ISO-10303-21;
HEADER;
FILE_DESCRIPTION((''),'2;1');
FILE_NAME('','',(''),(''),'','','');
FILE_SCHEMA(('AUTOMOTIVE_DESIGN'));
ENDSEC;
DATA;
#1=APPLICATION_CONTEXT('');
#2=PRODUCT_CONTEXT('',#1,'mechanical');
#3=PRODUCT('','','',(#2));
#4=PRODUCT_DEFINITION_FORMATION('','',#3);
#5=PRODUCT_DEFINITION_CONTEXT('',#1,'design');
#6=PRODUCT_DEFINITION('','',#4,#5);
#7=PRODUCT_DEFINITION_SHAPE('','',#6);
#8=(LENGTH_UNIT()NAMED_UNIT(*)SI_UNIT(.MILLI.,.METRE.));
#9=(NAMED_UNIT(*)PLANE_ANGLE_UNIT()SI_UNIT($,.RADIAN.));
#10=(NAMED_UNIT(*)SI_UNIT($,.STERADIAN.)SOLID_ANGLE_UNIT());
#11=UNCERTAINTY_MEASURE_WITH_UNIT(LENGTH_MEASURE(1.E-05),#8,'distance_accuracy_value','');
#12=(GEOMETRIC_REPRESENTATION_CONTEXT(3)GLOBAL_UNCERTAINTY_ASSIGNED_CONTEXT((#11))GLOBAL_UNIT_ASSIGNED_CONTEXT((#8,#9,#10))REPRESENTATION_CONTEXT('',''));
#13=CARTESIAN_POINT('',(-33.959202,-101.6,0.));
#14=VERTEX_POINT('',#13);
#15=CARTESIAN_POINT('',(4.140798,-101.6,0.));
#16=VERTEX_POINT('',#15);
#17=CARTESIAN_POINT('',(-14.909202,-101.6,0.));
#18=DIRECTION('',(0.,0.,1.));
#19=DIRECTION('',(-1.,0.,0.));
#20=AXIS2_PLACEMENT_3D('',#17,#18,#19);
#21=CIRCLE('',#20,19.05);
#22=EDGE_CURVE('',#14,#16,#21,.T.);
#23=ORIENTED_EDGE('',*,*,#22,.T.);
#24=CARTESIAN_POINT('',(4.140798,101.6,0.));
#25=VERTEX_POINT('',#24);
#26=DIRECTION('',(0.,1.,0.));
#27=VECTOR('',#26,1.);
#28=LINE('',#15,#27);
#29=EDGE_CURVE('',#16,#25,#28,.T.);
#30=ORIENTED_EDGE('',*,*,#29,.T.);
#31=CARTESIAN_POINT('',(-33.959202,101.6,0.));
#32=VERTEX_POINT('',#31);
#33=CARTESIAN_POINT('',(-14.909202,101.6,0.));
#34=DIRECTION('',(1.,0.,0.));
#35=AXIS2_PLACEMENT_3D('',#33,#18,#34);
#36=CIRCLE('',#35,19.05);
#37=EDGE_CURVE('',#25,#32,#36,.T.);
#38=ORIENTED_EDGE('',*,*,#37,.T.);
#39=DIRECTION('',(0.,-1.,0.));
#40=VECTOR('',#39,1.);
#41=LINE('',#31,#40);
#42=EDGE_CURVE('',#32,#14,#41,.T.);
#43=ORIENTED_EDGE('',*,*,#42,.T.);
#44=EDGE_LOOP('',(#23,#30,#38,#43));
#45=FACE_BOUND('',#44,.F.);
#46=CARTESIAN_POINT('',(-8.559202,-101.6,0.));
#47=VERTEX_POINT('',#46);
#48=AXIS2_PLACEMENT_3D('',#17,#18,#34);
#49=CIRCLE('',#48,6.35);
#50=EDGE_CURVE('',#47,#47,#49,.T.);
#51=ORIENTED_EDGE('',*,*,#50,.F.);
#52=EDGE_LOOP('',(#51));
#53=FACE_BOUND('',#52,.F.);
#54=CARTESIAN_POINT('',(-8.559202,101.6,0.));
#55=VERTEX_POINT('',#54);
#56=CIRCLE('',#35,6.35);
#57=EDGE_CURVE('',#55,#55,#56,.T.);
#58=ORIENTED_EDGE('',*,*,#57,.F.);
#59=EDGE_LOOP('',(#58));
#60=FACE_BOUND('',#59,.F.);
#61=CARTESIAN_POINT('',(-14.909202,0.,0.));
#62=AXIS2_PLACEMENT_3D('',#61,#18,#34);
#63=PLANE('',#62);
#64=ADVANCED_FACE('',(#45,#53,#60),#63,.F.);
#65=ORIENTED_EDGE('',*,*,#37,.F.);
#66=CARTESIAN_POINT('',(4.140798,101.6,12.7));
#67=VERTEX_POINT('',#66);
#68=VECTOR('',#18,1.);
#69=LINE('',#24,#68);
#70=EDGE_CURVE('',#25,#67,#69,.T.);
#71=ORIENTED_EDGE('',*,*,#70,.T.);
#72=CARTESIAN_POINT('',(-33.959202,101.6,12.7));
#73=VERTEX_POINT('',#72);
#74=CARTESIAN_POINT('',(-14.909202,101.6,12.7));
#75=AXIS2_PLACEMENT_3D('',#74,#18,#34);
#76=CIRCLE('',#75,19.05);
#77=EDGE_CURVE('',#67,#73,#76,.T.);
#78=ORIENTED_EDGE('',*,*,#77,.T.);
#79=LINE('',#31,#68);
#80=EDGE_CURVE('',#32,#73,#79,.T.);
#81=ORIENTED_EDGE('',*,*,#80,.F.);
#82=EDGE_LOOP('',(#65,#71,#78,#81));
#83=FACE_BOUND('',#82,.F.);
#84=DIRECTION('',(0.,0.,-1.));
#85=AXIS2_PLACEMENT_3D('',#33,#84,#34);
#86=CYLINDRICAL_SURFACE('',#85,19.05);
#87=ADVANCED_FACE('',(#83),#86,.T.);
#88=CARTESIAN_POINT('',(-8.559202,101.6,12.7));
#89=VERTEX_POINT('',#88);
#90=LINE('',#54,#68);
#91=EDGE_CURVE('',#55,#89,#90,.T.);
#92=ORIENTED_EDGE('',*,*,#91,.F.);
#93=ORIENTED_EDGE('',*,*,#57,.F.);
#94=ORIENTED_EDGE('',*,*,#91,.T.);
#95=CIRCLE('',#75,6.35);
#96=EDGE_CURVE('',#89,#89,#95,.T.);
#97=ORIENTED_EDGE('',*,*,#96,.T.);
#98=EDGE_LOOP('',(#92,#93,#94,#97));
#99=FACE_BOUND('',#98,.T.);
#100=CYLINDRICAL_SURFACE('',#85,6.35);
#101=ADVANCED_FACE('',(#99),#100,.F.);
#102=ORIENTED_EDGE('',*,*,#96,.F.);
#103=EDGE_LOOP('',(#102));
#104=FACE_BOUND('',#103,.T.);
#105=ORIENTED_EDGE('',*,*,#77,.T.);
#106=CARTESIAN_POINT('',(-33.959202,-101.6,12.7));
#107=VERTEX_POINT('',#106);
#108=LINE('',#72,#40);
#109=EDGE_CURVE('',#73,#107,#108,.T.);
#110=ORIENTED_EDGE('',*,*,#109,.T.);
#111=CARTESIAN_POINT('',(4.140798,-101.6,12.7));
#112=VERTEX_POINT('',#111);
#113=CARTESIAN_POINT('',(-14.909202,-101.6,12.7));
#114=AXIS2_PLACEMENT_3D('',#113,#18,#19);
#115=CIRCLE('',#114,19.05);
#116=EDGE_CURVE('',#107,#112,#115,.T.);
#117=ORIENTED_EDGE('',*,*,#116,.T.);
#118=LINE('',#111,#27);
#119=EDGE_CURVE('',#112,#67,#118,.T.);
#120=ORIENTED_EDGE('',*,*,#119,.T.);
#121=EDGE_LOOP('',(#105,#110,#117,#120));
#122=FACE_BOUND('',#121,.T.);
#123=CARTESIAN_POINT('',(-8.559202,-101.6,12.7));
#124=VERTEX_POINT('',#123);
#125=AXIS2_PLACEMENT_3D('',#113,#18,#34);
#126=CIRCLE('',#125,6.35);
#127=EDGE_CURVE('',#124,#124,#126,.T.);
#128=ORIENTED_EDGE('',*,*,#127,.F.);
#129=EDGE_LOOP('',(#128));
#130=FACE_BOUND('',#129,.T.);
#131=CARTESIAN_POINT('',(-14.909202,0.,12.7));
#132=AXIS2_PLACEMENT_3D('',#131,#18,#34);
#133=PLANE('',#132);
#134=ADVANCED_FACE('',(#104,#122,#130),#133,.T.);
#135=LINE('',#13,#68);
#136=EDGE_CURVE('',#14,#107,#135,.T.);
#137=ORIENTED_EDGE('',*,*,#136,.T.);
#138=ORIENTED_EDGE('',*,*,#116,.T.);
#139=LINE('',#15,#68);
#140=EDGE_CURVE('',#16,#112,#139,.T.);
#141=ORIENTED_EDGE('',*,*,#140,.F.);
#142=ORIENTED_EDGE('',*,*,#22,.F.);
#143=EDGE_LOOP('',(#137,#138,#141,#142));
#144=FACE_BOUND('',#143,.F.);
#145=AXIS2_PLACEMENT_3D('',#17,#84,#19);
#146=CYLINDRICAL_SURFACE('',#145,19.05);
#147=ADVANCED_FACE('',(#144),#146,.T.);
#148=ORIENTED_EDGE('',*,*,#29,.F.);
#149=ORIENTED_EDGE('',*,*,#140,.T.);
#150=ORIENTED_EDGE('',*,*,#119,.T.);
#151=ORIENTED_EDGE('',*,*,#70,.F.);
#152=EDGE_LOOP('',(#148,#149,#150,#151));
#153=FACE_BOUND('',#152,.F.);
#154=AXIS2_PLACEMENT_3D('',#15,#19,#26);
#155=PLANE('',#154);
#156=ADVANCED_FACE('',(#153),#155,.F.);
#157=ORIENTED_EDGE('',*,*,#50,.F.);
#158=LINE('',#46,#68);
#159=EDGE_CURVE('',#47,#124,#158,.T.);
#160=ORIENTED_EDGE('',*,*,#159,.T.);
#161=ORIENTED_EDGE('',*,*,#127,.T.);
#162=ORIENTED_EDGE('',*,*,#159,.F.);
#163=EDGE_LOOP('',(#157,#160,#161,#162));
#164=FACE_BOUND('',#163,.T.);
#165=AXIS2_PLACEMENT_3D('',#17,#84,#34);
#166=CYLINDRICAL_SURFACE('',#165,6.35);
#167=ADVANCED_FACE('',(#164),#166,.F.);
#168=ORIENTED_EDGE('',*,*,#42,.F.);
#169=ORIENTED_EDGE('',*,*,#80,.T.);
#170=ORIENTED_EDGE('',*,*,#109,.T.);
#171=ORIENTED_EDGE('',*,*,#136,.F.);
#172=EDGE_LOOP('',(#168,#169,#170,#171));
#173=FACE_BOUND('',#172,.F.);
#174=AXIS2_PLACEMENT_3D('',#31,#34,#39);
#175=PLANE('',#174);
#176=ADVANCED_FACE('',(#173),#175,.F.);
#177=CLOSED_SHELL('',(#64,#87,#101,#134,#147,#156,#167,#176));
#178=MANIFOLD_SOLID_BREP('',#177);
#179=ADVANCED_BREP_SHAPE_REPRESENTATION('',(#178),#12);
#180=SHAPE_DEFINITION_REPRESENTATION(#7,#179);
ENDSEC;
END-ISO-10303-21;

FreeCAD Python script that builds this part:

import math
import FreeCAD as App
import Part
import Sketcher
Q = App.Units.Quantity

doc = App.newDocument("Part")
params = doc.addObject("Spreadsheet::Sheet", "Params")
for row, (alias, value) in enumerate([
    ("sketch1_diameter", "0.5 in"),
    ("sketch1_height", "8 in"),
    ("sketch1_radius", "0.75 in"),
    ("pad1_length", "0.5 in"),
], start=1):
    params.set(f"A{row}", alias)
    params.set(f"B{row}", "=" + value)
    params.setAlias(f"B{row}", alias)

body = doc.addObject("PartDesign::Body", "Body")

# Sketch on XY plane
sketch1 = doc.addObject("Sketcher::SketchObject", "Sketch")
body.addObject(sketch1)
sketch1.AttachmentSupport = (doc.XY_Plane, [""])
sketch1.MapMode = "FlatFace"
sketch1.addGeometry(Part.ArcOfCircle(Part.Circle(App.Vector(-14.909202, 101.6, 0), App.Vector(0, 0, 1), 19.05), math.radians(0), math.radians(180)), False)
sketch1.addGeometry(Part.LineSegment(App.Vector(-33.959202, 101.6, 0), App.Vector(-33.959202, -101.6, 0)), False)
sketch1.addGeometry(Part.ArcOfCircle(Part.Circle(App.Vector(-14.909202, -101.6, 0), App.Vector(0, 0, 1), 19.05), math.radians(180), math.radians(360)), False)
sketch1.addGeometry(Part.LineSegment(App.Vector(4.140798, -101.6, 0), App.Vector(4.140798, 101.6, 0)), False)
sketch1.addGeometry(Part.Circle(App.Vector(-14.909202, -101.6, 0), App.Vector(0, 0, 1), 6.35), False)
sketch1.addGeometry(Part.Circle(App.Vector(-14.909202, 101.6, 0), App.Vector(0, 0, 1), 6.35), False)
sketch1.addConstraint(Sketcher.Constraint("Tangent", 0, 2, 1, 1))
sketch1.addConstraint(Sketcher.Constraint("Tangent", 1, 2, 2, 1))
sketch1.addConstraint(Sketcher.Constraint("Tangent", 2, 2, 3, 1))
sketch1.addConstraint(Sketcher.Constraint("Tangent", 3, 2, 0, 1))
sketch1.addConstraint(Sketcher.Constraint("Vertical", 1))
sketch1.addConstraint(Sketcher.Constraint("Vertical", 3))
sketch1.addConstraint(Sketcher.Constraint("Coincident", 4, 3, 2, 3))
sketch1.addConstraint(Sketcher.Constraint("Coincident", 5, 3, 0, 3))
sketch1.addConstraint(Sketcher.Constraint("Equal", 4, 5))
sketch1.addConstraint(Sketcher.Constraint("Diameter", 4, Q("0.5 in")))
sketch1.addConstraint(Sketcher.Constraint("DistanceY", 1, 2, 1, 1, Q("8 in")))
sketch1.addConstraint(Sketcher.Constraint("Radius", 0, Q("0.75 in")))
sketch1.addConstraint(Sketcher.Constraint("DistanceY", -1, 1, 0, 3, Q("4 in")))
sketch1.addConstraint(Sketcher.Constraint("DistanceX", 1, 2, -1, 1, 33.959202))
sketch1.setExpression("Constraints[9]", "Params.sketch1_diameter")
sketch1.setExpression("Constraints[10]", "Params.sketch1_height")
sketch1.setExpression("Constraints[11]", "Params.sketch1_radius")
pad1 = doc.addObject("PartDesign::Pad", "Pad")
body.addObject(pad1)
pad1.Profile = sketch1
pad1.setExpression("Length", "Params.pad1_length")

doc.recompute()
